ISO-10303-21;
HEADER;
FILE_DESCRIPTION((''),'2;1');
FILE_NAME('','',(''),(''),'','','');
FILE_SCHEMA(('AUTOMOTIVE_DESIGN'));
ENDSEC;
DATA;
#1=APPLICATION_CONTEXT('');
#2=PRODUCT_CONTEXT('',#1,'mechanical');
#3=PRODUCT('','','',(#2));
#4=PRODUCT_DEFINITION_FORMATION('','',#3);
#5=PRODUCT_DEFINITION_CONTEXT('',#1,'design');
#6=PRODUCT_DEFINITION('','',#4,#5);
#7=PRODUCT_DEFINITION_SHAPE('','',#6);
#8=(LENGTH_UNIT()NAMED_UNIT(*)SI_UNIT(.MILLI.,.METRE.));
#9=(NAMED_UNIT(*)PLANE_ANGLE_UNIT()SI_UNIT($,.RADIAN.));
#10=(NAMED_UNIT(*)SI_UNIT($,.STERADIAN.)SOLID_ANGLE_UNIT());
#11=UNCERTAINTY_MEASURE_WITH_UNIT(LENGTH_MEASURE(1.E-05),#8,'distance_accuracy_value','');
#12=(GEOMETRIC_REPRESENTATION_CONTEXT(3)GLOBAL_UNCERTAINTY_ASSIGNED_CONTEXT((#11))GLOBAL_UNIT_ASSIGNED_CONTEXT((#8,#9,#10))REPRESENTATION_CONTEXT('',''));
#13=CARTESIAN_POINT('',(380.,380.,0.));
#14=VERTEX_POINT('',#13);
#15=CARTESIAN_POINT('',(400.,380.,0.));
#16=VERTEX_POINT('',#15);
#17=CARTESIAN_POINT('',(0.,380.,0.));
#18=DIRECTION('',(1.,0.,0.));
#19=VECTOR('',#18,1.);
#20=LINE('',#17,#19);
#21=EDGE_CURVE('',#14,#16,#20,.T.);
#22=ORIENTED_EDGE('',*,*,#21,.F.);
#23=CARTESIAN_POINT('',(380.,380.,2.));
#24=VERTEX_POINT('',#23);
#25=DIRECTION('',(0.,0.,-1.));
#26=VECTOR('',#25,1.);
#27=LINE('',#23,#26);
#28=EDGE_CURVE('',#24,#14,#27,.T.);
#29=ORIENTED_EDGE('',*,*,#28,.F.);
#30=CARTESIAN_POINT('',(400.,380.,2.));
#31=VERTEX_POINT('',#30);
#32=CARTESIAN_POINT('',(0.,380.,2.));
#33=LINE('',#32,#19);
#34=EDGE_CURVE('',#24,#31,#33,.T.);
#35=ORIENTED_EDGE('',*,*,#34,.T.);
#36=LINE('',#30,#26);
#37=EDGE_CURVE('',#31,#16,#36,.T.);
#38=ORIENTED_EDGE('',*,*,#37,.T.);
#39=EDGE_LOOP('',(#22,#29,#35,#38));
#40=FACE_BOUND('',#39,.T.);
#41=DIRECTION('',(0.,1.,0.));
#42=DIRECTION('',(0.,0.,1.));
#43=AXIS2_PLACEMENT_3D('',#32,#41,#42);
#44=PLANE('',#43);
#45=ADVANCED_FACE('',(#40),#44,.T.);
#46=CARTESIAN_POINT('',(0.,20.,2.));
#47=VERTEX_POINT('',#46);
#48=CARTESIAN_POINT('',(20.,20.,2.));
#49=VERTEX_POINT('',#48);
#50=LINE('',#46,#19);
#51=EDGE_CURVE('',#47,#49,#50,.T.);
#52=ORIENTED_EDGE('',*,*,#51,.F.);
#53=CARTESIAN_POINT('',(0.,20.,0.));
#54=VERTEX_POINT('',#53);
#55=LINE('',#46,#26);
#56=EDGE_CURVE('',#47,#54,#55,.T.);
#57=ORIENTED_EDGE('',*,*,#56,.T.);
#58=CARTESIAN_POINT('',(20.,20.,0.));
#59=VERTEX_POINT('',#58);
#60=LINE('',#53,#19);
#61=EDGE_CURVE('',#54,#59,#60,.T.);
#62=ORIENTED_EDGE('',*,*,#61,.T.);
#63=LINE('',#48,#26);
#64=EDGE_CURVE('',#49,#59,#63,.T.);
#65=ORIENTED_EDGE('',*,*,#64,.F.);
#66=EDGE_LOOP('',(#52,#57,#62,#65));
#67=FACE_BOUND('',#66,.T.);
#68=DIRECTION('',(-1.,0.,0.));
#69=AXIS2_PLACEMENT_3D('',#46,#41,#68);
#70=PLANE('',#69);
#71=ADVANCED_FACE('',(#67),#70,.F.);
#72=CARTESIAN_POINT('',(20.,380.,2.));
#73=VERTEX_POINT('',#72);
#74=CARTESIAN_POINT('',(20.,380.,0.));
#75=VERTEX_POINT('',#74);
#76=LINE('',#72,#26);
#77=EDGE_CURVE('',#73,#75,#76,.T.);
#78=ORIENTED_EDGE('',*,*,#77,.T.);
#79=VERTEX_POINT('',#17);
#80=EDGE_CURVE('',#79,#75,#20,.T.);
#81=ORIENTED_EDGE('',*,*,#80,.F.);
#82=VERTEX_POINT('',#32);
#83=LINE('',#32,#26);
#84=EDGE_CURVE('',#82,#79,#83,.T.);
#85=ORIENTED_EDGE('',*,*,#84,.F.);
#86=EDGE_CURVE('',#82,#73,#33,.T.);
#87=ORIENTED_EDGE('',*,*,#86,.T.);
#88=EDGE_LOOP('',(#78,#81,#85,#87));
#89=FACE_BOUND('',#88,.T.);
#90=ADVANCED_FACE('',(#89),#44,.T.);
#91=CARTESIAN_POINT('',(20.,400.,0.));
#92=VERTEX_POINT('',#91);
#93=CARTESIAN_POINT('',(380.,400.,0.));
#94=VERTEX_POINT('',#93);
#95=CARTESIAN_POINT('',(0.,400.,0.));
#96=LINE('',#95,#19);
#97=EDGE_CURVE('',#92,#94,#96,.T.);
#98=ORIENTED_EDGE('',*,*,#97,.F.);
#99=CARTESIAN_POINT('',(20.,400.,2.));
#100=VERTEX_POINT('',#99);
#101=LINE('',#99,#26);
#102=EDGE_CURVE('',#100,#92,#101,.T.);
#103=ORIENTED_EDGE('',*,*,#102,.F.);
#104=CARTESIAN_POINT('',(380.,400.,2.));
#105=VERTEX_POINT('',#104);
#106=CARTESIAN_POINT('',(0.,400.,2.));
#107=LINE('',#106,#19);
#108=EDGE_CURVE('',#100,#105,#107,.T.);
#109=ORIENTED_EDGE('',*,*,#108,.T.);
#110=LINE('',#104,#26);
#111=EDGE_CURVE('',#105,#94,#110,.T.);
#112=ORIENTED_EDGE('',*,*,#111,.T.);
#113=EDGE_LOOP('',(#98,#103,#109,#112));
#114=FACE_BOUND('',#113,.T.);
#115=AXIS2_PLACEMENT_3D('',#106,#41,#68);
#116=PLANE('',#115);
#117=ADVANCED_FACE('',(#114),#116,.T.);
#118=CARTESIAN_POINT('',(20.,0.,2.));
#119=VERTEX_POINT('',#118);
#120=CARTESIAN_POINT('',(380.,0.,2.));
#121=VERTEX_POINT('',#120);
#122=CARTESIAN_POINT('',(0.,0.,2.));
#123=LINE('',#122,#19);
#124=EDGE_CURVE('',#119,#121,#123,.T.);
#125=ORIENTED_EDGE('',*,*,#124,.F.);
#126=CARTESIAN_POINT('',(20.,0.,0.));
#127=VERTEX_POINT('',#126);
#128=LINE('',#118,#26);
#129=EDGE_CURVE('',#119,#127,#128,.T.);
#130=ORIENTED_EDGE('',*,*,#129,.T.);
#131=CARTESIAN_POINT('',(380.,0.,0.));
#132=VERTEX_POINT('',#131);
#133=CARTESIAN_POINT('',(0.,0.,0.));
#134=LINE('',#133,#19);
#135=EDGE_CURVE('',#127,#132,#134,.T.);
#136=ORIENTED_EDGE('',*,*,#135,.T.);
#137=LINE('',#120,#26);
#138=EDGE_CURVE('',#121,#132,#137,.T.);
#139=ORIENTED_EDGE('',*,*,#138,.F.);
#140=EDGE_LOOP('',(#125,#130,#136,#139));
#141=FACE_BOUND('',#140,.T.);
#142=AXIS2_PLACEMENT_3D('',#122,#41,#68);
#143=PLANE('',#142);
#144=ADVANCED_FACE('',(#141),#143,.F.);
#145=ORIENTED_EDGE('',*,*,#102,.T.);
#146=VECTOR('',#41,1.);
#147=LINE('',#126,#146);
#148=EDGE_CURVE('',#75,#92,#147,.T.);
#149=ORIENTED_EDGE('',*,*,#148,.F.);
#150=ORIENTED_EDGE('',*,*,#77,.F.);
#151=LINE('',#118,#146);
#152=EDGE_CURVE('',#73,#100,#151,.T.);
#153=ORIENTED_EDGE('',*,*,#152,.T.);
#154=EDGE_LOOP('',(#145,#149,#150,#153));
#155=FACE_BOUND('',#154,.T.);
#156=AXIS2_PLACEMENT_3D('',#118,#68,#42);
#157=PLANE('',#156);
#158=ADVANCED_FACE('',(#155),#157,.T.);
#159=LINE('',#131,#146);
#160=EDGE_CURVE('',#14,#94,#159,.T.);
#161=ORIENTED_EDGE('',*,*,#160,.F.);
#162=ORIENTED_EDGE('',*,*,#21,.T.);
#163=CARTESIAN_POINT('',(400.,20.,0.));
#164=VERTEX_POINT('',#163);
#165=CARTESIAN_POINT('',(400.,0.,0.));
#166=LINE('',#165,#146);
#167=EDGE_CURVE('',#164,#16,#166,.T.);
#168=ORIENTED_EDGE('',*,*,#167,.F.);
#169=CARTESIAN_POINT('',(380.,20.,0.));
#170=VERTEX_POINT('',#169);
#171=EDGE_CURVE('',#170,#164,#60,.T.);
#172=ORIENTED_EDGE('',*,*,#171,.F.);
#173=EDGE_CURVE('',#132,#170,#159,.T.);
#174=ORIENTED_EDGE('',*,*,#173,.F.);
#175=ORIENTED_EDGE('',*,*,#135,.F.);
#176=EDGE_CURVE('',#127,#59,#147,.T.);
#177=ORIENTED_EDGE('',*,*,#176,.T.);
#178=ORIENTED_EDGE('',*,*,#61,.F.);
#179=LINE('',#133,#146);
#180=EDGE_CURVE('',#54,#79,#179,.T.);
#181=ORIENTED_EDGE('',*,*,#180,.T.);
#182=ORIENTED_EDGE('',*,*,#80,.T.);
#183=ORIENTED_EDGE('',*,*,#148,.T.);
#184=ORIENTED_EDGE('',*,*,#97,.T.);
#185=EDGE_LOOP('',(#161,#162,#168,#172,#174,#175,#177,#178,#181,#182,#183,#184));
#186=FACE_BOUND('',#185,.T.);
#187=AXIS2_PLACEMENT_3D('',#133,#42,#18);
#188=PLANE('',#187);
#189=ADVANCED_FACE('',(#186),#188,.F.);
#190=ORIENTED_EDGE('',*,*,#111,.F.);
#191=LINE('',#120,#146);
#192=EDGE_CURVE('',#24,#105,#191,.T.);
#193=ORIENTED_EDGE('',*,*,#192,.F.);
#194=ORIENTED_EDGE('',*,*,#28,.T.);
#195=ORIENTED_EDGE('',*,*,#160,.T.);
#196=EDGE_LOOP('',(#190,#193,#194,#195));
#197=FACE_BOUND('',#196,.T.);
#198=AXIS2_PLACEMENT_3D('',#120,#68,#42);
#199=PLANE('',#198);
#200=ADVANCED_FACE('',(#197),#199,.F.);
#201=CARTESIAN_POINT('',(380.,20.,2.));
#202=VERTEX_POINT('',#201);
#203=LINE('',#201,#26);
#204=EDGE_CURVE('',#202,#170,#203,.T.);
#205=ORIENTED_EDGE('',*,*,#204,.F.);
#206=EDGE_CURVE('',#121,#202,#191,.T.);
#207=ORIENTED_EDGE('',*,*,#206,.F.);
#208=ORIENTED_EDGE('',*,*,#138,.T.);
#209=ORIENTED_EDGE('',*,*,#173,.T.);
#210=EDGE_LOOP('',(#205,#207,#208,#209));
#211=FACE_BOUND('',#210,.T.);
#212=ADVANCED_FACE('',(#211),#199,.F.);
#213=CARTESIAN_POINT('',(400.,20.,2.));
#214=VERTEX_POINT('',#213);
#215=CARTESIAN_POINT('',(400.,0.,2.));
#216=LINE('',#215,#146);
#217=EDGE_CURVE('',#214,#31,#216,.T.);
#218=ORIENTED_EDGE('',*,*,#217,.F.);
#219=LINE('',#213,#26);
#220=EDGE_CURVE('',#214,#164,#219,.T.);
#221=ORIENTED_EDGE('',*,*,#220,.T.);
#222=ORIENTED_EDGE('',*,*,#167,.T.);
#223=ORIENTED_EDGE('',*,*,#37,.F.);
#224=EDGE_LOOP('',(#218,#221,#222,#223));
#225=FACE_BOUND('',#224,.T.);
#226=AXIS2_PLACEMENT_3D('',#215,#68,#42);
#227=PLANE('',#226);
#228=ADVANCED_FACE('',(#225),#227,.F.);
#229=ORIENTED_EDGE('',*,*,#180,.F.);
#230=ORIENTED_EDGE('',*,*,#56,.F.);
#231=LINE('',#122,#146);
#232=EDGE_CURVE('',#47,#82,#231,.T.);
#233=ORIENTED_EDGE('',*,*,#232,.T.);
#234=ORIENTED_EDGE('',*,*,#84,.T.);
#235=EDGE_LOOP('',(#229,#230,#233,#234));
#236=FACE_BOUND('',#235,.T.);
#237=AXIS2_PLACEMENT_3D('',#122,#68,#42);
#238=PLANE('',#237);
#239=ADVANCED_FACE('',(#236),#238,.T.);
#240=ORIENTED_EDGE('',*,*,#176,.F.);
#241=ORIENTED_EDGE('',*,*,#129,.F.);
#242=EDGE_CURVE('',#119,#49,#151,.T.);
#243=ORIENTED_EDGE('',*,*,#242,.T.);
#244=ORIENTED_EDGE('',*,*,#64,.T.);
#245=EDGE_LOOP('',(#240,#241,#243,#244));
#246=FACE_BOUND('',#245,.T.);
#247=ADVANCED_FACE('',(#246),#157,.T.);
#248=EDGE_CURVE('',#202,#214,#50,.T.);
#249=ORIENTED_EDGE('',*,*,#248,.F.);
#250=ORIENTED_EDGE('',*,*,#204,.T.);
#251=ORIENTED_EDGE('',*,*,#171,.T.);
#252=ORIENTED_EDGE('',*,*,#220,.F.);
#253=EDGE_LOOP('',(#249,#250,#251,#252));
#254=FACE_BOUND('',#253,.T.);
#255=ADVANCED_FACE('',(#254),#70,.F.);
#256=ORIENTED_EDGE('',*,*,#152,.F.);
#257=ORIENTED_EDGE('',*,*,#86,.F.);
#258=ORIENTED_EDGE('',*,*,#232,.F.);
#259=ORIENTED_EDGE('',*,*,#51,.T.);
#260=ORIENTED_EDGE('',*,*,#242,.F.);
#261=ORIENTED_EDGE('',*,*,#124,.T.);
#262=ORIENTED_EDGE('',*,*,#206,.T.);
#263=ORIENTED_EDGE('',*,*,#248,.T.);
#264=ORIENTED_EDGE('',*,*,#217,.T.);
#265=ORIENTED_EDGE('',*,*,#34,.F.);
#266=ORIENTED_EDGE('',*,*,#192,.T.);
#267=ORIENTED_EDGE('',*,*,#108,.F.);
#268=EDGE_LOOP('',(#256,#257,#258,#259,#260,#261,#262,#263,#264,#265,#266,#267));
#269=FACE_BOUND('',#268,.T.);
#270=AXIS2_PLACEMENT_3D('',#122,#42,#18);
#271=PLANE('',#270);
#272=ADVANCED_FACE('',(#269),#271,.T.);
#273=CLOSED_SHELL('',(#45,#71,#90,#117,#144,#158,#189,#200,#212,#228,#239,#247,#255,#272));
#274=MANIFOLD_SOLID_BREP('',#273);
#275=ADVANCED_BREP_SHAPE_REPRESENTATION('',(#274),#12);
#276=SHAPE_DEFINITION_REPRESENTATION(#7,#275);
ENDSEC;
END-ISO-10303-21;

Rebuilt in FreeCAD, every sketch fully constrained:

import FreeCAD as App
import Part
import Sketcher

doc = App.newDocument("Part")
body = doc.addObject("PartDesign::Body", "Body")

# Sketch on XY plane
sketch1 = body.newObject("Sketcher::SketchObject", "Sketch")
sketch1.AttachmentSupport = (doc.getObject("XY_Plane"), [""])
sketch1.MapMode = "FlatFace"
sketch1.addGeometry(Part.LineSegment(App.Vector(20, 380, 0), App.Vector(0, 380, 0)), False)
sketch1.addGeometry(Part.LineSegment(App.Vector(0, 380, 0), App.Vector(0, 20, 0)), False)
sketch1.addGeometry(Part.LineSegment(App.Vector(0, 20, 0), App.Vector(20, 20, 0)), False)
sketch1.addGeometry(Part.LineSegment(App.Vector(20, 20, 0), App.Vector(20, 0, 0)), False)
sketch1.addGeometry(Part.LineSegment(App.Vector(20, 0, 0), App.Vector(380, 0, 0)), False)
sketch1.addGeometry(Part.LineSegment(App.Vector(380, 0, 0), App.Vector(380, 20, 0)), False)
sketch1.addGeometry(Part.LineSegment(App.Vector(380, 20, 0), App.Vector(400, 20, 0)), False)
sketch1.addGeometry(Part.LineSegment(App.Vector(400, 20, 0), App.Vector(400, 380, 0)), False)
sketch1.addGeometry(Part.LineSegment(App.Vector(400, 380, 0), App.Vector(380, 380, 0)), False)
sketch1.addGeometry(Part.LineSegment(App.Vector(380, 380, 0), App.Vector(380, 400, 0)), False)
sketch1.addGeometry(Part.LineSegment(App.Vector(380, 400, 0), App.Vector(20, 400, 0)), False)
sketch1.addGeometry(Part.LineSegment(App.Vector(20, 400, 0), App.Vector(20, 380, 0)), False)
sketch1.addConstraint(Sketcher.Constraint("Coincident", 0, 2, 1, 1))
sketch1.addConstraint(Sketcher.Constraint("Coincident", 1, 2, 2, 1))
sketch1.addConstraint(Sketcher.Constraint("Coincident", 2, 2, 3, 1))
sketch1.addConstraint(Sketcher.Constraint("Coincident", 3, 2, 4, 1))
sketch1.addConstraint(Sketcher.Constraint("Coincident", 4, 2, 5, 1))
sketch1.addConstraint(Sketcher.Constraint("Coincident", 5, 2, 6, 1))
sketch1.addConstraint(Sketcher.Constraint("Coincident", 6, 2, 7, 1))
sketch1.addConstraint(Sketcher.Constraint("Coincident", 7, 2, 8, 1))
sketch1.addConstraint(Sketcher.Constraint("Coincident", 8, 2, 9, 1))
sketch1.addConstraint(Sketcher.Constraint("Coincident", 9, 2, 10, 1))
sketch1.addConstraint(Sketcher.Constraint("Coincident", 10, 2, 11, 1))
sketch1.addConstraint(Sketcher.Constraint("Coincident", 11, 2, 0, 1))
sketch1.addConstraint(Sketcher.Constraint("Horizontal", 0))
sketch1.addConstraint(Sketcher.Constraint("Vertical", 1))
sketch1.addConstraint(Sketcher.Constraint("Horizontal", 2))
sketch1.addConstraint(Sketcher.Constraint("Vertical", 3))
sketch1.addConstraint(Sketcher.Constraint("Horizontal", 4))
sketch1.addConstraint(Sketcher.Constraint("Vertical", 5))
sketch1.addConstraint(Sketcher.Constraint("Horizontal", 6))
sketch1.addConstraint(Sketcher.Constraint("Vertical", 7))
sketch1.addConstraint(Sketcher.Constraint("Horizontal", 8))
sketch1.addConstraint(Sketcher.Constraint("Vertical", 9))
sketch1.addConstraint(Sketcher.Constraint("Horizontal", 10))
sketch1.addConstraint(Sketcher.Constraint("Vertical", 11))
sketch1.addConstraint(Sketcher.Constraint("PointOnObject", 0, 2, -2))
sketch1.addConstraint(Sketcher.Constraint("PointOnObject", 3, 2, -1))
sketch1.addConstraint(Sketcher.Constraint("Horizontal", 2, 2, 5, 2))
sketch1.addConstraint(Sketcher.Constraint("Horizontal", 0, 2, 7, 2))
sketch1.addConstraint(Sketcher.Constraint("Vertical", 5, 2, 8, 2))
sketch1.addConstraint(Sketcher.Constraint("Vertical", 3, 2, 10, 2))
sketch1.addConstraint(Sketcher.Constraint("Equal", 2, 6))
sketch1.addConstraint(Sketcher.Constraint("Equal", 10, 1))
sketch1.addConstraint(Sketcher.Constraint("Equal", 8, 3))
sketch1.addConstraint(Sketcher.Constraint("Equal", 5, 9))
sketch1.addConstraint(Sketcher.Constraint("DistanceX", 0, 2, 0, 1, 20.0))
sketch1.addConstraint(Sketcher.Constraint("DistanceX", 4, 1, 4, 2, 360.0))
pad1 = body.newObject("PartDesign::Pad", "Pad")
pad1.Profile = sketch1
pad1.Length = 2

doc.recompute()
